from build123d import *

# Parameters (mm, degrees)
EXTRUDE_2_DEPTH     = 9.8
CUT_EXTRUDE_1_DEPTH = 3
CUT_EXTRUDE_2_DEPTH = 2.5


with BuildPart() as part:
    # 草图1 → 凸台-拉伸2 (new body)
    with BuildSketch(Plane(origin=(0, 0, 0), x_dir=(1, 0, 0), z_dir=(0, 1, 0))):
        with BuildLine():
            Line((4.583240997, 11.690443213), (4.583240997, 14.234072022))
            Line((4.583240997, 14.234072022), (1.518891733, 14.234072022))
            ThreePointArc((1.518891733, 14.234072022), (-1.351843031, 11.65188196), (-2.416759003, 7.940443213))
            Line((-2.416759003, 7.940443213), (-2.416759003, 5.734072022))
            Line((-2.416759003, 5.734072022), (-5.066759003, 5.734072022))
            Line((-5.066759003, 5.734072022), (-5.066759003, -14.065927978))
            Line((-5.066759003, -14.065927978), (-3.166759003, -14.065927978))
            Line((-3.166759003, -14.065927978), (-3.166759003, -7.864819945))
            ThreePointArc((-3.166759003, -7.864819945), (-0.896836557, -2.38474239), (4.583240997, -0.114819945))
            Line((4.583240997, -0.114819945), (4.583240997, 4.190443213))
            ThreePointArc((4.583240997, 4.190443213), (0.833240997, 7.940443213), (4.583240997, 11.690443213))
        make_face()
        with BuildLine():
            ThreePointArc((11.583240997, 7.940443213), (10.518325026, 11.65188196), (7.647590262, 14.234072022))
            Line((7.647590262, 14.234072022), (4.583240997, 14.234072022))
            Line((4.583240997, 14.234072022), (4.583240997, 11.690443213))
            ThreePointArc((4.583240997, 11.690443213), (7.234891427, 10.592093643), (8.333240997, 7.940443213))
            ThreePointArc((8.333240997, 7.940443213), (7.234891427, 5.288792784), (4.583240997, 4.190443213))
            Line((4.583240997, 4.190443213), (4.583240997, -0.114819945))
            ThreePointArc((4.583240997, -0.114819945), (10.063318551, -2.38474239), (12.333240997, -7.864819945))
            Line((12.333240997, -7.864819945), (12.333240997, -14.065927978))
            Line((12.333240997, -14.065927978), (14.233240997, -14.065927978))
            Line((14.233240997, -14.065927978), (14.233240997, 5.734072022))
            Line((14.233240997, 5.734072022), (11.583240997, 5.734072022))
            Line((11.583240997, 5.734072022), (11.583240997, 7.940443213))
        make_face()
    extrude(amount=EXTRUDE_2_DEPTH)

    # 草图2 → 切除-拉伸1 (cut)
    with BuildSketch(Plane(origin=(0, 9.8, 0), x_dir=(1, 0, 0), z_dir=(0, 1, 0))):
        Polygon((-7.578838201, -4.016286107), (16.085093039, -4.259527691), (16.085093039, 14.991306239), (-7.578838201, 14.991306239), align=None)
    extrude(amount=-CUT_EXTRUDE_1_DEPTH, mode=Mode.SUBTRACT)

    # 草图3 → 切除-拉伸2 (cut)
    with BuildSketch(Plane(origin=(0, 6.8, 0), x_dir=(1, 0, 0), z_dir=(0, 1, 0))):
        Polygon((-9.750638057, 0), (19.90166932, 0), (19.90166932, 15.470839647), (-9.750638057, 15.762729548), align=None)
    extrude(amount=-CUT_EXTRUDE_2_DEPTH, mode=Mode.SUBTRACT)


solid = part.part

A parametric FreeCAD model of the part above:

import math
import FreeCAD as App
import Part
import Sketcher

V = App.Vector

doc = App.newDocument("Part")
body = doc.addObject("PartDesign::Body", "Body")

sketch1 = doc.addObject("Sketcher::SketchObject", "Sketch")
body.addObject(sketch1)
sketch1.AttachmentSupport = (doc.XZ_Plane, [""])
sketch1.MapMode = "FlatFace"
sketch1.addGeometry(Part.ArcOfCircle(Part.Circle(V(4.6, -7.9, 0), V(0, 0, 1), 7), math.radians(-180), math.radians(-116)), False)
sketch1.addGeometry(Part.LineSegment(V(-2.4, -7.9, 0), V(-2.4, -5.7, 0)), False)
sketch1.addGeometry(Part.LineSegment(V(-2.4, -5.7, 0), V(-5.1, -5.7, 0)), False)
sketch1.addGeometry(Part.LineSegment(V(-5.1, -5.7, 0), V(-5.1, 14.1, 0)), False)
sketch1.addGeometry(Part.LineSegment(V(-5.1, 14.1, 0), V(-3.2, 14.1, 0)), False)
sketch1.addGeometry(Part.LineSegment(V(-3.2, 14.1, 0), V(-3.2, 7.9, 0)), False)
sketch1.addGeometry(Part.ArcOfCircle(Part.Circle(V(4.6, 7.9, 0), V(0, 0, 1), 7.7), math.radians(180), math.radians(270)), False)
sketch1.addGeometry(Part.ArcOfCircle(Part.Circle(V(4.6, 7.9, 0), V(0, 0, 1), 7.7), math.radians(-90), math.radians(0)), False)
sketch1.addGeometry(Part.LineSegment(V(12.3, 7.9, 0), V(12.3, 14.1, 0)), False)
sketch1.addGeometry(Part.LineSegment(V(12.3, 14.1, 0), V(14.2, 14.1, 0)), False)
sketch1.addGeometry(Part.LineSegment(V(14.2, 14.1, 0), V(14.2, -5.7, 0)), False)
sketch1.addGeometry(Part.LineSegment(V(14.2, -5.7, 0), V(11.6, -5.7, 0)), False)
sketch1.addGeometry(Part.LineSegment(V(11.6, -5.7, 0), V(11.6, -7.9, 0)), False)
sketch1.addGeometry(Part.ArcOfCircle(Part.Circle(V(4.6, -7.9, 0), V(0, 0, 1), 7), math.radians(-64), math.radians(0)), False)
sketch1.addGeometry(Part.LineSegment(V(7.6, -14.2, 0), V(1.5, -14.2, 0)), False)
sketch1.addGeometry(Part.ArcOfCircle(Part.Circle(V(4.6, -7.9, 0), V(0, 0, 1), 3.8), math.radians(90), math.radians(270)), False)
sketch1.addGeometry(Part.ArcOfCircle(Part.Circle(V(4.6, -7.9, 0), V(0, 0, 1), 3.7), math.radians(-90), math.radians(0)), False)
sketch1.addGeometry(Part.ArcOfCircle(Part.Circle(V(4.6, -7.9, 0), V(0, 0, 1), 3.8), math.radians(0), math.radians(90)), False)
sketch1.addConstraint(Sketcher.Constraint("Tangent", 0, 1, 1, 1))
sketch1.addConstraint(Sketcher.Constraint("Coincident", 1, 2, 2, 1))
sketch1.addConstraint(Sketcher.Constraint("Coincident", 2, 2, 3, 1))
sketch1.addConstraint(Sketcher.Constraint("Coincident", 3, 2, 4, 1))
sketch1.addConstraint(Sketcher.Constraint("Coincident", 4, 2, 5, 1))
sketch1.addConstraint(Sketcher.Constraint("Tangent", 5, 2, 6, 1))
sketch1.addConstraint(Sketcher.Constraint("Tangent", 6, 2, 7, 1))
sketch1.addConstraint(Sketcher.Constraint("Tangent", 7, 2, 8, 1))
sketch1.addConstraint(Sketcher.Constraint("Coincident", 8, 2, 9, 1))
sketch1.addConstraint(Sketcher.Constraint("Coincident", 9, 2, 10, 1))
sketch1.addConstraint(Sketcher.Constraint("Coincident", 10, 2, 11, 1))
sketch1.addConstraint(Sketcher.Constraint("Coincident", 11, 2, 12, 1))
sketch1.addConstraint(Sketcher.Constraint("Tangent", 12, 2, 13, 2))
sketch1.addConstraint(Sketcher.Constraint("Coincident", 13, 1, 14, 1))
sketch1.addConstraint(Sketcher.Constraint("Coincident", 14, 2, 0, 2))
sketch1.addConstraint(Sketcher.Constraint("Tangent", 15, 2, 16, 1))
sketch1.addConstraint(Sketcher.Constraint("Tangent", 16, 2, 17, 1))
sketch1.addConstraint(Sketcher.Constraint("Tangent", 17, 2, 15, 1))
sketch1.addConstraint(Sketcher.Constraint("Vertical", 1))
sketch1.addConstraint(Sketcher.Constraint("Horizontal", 2))
sketch1.addConstraint(Sketcher.Constraint("Vertical", 3))
sketch1.addConstraint(Sketcher.Constraint("Horizontal", 4))
sketch1.addConstraint(Sketcher.Constraint("Vertical", 5))
sketch1.addConstraint(Sketcher.Constraint("Vertical", 8))
sketch1.addConstraint(Sketcher.Constraint("Horizontal", 9))
sketch1.addConstraint(Sketcher.Constraint("Vertical", 10))
sketch1.addConstraint(Sketcher.Constraint("Horizontal", 11))
sketch1.addConstraint(Sketcher.Constraint("Vertical", 12))
sketch1.addConstraint(Sketcher.Constraint("Horizontal", 14))
sketch1.addConstraint(Sketcher.Constraint("Coincident", 13, 3, 0, 3))
sketch1.addConstraint(Sketcher.Constraint("Coincident", 15, 3, 0, 3))
sketch1.addConstraint(Sketcher.Constraint("Equal", 6, 7))
sketch1.addConstraint(Sketcher.Constraint("Equal", 0, 13))
sketch1.addConstraint(Sketcher.Constraint("Horizontal", 4, 2, 8, 2))
sketch1.addConstraint(Sketcher.Constraint("Horizontal", 2, 2, 10, 2))
sketch1.addConstraint(Sketcher.Constraint("Horizontal", 12, 2, 16, 2))
sketch1.addConstraint(Sketcher.Constraint("Vertical", 0, 3, 6, 3))
sketch1.addConstraint(Sketcher.Constraint("Vertical", 17, 3, 6, 2))
sketch1.addConstraint(Sketcher.Constraint("Vertical", 6, 2, 15, 2))
sketch1.addConstraint(Sketcher.Constraint("Vertical", 15, 2, 17, 2))
sketch1.addConstraint(Sketcher.Constraint("Equal", 4, 9))
sketch1.addConstraint(Sketcher.Constraint("Radius", 0, 7.0))
sketch1.addConstraint(Sketcher.Constraint("Radius", 6, 7.75))
sketch1.addConstraint(Sketcher.Constraint("Radius", 15, 3.75))
sketch1.addConstraint(Sketcher.Constraint("DistanceX", 4, 1, 4, 2, 1.9))
sketch1.addConstraint(Sketcher.Constraint("DistanceY", 3, 1, 3, 2, 19.8))
sketch1.addConstraint(Sketcher.Constraint("DistanceX", 14, 2, 14, 1, 6.128699))
sketch1.addConstraint(Sketcher.Constraint("DistanceY", 1, 1, 1, 2, 2.206371))
sketch1.addConstraint(Sketcher.Constraint("DistanceY", 5, 2, 5, 1, 6.201108))
sketch1.addConstraint(Sketcher.Constraint("DistanceX", -1, 1, 0, 3, 4.583241))
sketch1.addConstraint(Sketcher.Constraint("DistanceY", -1, 1, 6, 3, 7.86482))
pad1 = doc.addObject("PartDesign::Pad", "Pad")
body.addObject(pad1)
pad1.Profile = sketch1
pad1.Length = 9.8
pad1.Reversed = True

sketch2 = doc.addObject("Sketcher::SketchObject", "Sketch001")
body.addObject(sketch2)
sketch2.AttachmentSupport = (doc.XZ_Plane, [""])
sketch2.MapMode = "FlatFace"
sketch2.AttachmentOffset = App.Placement(V(0, 0, -9.8), App.Rotation())
sketch2.addGeometry(Part.LineSegment(V(-7.578838, 4.016286, 0), V(16.085093, 4.259528, 0)), False)
sketch2.addGeometry(Part.LineSegment(V(16.085093, 4.259528, 0), V(16.085093, -14.991306, 0)), False)
sketch2.addGeometry(Part.LineSegment(V(16.085093, -14.991306, 0), V(-7.578838, -14.991306, 0)), False)
sketch2.addGeometry(Part.LineSegment(V(-7.578838, -14.991306, 0), V(-7.578838, 4.016286, 0)), False)
sketch2.addConstraint(Sketcher.Constraint("Coincident", 0, 2, 1, 1))
sketch2.addConstraint(Sketcher.Constraint("Coincident", 1, 2, 2, 1))
sketch2.addConstraint(Sketcher.Constraint("Coincident", 2, 2, 3, 1))
sketch2.addConstraint(Sketcher.Constraint("Coincident", 3, 2, 0, 1))
sketch2.addConstraint(Sketcher.Constraint("Vertical", 1))
sketch2.addConstraint(Sketcher.Constraint("Horizontal", 2))
sketch2.addConstraint(Sketcher.Constraint("Vertical", 3))
sketch2.addConstraint(Sketcher.Constraint("DistanceX", 2, 2, 2, 1, 23.663931))
sketch2.addConstraint(Sketcher.Constraint("Distance", 0, 23.665181))
sketch2.addConstraint(Sketcher.Constraint("DistanceY", 1, 2, 1, 1, 19.250834))
sketch2.addConstraint(Sketcher.Constraint("DistanceX", 2, 2, -1, 1, 7.578838))
sketch2.addConstraint(Sketcher.Constraint("DistanceY", -1, 1, 0, 2, 4.259528))
pocket1 = doc.addObject("PartDesign::Pocket", "Pocket")
body.addObject(pocket1)
pocket1.Profile = sketch2
pocket1.Length = 3
pocket1.Reversed = True

sketch3 = doc.addObject("Sketcher::SketchObject", "Sketch002")
body.addObject(sketch3)
sketch3.AttachmentSupport = (doc.XZ_Plane, [""])
sketch3.MapMode = "FlatFace"
sketch3.AttachmentOffset = App.Placement(V(0, 0, -6.8), App.Rotation())
sketch3.addGeometry(Part.LineSegment(V(-10, 0, 0), V(20, 0, 0)), False)
sketch3.addGeometry(Part.LineSegment(V(20, 0, 0), V(20, -15, 0)), False)
sketch3.addGeometry(Part.LineSegment(V(20, -15, 0), V(-10, -16, 0)), False)
sketch3.addGeometry(Part.LineSegment(V(-10, -16, 0), V(-10, 0, 0)), False)
sketch3.addConstraint(Sketcher.Constraint("Coincident", 0, 2, 1, 1))
sketch3.addConstraint(Sketcher.Constraint("Coincident", 1, 2, 2, 1))
sketch3.addConstraint(Sketcher.Constraint("Coincident", 2, 2, 3, 1))
sketch3.addConstraint(Sketcher.Constraint("Coincident", 3, 2, 0, 1))
sketch3.addConstraint(Sketcher.Constraint("Horizontal", 0))
sketch3.addConstraint(Sketcher.Constraint("Vertical", 1))
sketch3.addConstraint(Sketcher.Constraint("Vertical", 3))
sketch3.addConstraint(Sketcher.Constraint("PointOnObject", 0, 2, -1))
sketch3.addConstraint(Sketcher.Constraint("DistanceY", 1, 2, 1, 1, 15.47084))
sketch3.addConstraint(Sketcher.Constraint("DistanceY", 3, 1, 3, 2, 15.76273))
sketch3.addConstraint(Sketcher.Constraint("DistanceX", 0, 1, 0, 2, 29.652307))
sketch3.addConstraint(Sketcher.Constraint("DistanceX", -1, 1, 0, 2, 19.901669))
pocket2 = doc.addObject("PartDesign::Pocket", "Pocket001")
body.addObject(pocket2)
pocket2.Profile = sketch3
pocket2.Length = 2.5
pocket2.Reversed = True

doc.recompute()
